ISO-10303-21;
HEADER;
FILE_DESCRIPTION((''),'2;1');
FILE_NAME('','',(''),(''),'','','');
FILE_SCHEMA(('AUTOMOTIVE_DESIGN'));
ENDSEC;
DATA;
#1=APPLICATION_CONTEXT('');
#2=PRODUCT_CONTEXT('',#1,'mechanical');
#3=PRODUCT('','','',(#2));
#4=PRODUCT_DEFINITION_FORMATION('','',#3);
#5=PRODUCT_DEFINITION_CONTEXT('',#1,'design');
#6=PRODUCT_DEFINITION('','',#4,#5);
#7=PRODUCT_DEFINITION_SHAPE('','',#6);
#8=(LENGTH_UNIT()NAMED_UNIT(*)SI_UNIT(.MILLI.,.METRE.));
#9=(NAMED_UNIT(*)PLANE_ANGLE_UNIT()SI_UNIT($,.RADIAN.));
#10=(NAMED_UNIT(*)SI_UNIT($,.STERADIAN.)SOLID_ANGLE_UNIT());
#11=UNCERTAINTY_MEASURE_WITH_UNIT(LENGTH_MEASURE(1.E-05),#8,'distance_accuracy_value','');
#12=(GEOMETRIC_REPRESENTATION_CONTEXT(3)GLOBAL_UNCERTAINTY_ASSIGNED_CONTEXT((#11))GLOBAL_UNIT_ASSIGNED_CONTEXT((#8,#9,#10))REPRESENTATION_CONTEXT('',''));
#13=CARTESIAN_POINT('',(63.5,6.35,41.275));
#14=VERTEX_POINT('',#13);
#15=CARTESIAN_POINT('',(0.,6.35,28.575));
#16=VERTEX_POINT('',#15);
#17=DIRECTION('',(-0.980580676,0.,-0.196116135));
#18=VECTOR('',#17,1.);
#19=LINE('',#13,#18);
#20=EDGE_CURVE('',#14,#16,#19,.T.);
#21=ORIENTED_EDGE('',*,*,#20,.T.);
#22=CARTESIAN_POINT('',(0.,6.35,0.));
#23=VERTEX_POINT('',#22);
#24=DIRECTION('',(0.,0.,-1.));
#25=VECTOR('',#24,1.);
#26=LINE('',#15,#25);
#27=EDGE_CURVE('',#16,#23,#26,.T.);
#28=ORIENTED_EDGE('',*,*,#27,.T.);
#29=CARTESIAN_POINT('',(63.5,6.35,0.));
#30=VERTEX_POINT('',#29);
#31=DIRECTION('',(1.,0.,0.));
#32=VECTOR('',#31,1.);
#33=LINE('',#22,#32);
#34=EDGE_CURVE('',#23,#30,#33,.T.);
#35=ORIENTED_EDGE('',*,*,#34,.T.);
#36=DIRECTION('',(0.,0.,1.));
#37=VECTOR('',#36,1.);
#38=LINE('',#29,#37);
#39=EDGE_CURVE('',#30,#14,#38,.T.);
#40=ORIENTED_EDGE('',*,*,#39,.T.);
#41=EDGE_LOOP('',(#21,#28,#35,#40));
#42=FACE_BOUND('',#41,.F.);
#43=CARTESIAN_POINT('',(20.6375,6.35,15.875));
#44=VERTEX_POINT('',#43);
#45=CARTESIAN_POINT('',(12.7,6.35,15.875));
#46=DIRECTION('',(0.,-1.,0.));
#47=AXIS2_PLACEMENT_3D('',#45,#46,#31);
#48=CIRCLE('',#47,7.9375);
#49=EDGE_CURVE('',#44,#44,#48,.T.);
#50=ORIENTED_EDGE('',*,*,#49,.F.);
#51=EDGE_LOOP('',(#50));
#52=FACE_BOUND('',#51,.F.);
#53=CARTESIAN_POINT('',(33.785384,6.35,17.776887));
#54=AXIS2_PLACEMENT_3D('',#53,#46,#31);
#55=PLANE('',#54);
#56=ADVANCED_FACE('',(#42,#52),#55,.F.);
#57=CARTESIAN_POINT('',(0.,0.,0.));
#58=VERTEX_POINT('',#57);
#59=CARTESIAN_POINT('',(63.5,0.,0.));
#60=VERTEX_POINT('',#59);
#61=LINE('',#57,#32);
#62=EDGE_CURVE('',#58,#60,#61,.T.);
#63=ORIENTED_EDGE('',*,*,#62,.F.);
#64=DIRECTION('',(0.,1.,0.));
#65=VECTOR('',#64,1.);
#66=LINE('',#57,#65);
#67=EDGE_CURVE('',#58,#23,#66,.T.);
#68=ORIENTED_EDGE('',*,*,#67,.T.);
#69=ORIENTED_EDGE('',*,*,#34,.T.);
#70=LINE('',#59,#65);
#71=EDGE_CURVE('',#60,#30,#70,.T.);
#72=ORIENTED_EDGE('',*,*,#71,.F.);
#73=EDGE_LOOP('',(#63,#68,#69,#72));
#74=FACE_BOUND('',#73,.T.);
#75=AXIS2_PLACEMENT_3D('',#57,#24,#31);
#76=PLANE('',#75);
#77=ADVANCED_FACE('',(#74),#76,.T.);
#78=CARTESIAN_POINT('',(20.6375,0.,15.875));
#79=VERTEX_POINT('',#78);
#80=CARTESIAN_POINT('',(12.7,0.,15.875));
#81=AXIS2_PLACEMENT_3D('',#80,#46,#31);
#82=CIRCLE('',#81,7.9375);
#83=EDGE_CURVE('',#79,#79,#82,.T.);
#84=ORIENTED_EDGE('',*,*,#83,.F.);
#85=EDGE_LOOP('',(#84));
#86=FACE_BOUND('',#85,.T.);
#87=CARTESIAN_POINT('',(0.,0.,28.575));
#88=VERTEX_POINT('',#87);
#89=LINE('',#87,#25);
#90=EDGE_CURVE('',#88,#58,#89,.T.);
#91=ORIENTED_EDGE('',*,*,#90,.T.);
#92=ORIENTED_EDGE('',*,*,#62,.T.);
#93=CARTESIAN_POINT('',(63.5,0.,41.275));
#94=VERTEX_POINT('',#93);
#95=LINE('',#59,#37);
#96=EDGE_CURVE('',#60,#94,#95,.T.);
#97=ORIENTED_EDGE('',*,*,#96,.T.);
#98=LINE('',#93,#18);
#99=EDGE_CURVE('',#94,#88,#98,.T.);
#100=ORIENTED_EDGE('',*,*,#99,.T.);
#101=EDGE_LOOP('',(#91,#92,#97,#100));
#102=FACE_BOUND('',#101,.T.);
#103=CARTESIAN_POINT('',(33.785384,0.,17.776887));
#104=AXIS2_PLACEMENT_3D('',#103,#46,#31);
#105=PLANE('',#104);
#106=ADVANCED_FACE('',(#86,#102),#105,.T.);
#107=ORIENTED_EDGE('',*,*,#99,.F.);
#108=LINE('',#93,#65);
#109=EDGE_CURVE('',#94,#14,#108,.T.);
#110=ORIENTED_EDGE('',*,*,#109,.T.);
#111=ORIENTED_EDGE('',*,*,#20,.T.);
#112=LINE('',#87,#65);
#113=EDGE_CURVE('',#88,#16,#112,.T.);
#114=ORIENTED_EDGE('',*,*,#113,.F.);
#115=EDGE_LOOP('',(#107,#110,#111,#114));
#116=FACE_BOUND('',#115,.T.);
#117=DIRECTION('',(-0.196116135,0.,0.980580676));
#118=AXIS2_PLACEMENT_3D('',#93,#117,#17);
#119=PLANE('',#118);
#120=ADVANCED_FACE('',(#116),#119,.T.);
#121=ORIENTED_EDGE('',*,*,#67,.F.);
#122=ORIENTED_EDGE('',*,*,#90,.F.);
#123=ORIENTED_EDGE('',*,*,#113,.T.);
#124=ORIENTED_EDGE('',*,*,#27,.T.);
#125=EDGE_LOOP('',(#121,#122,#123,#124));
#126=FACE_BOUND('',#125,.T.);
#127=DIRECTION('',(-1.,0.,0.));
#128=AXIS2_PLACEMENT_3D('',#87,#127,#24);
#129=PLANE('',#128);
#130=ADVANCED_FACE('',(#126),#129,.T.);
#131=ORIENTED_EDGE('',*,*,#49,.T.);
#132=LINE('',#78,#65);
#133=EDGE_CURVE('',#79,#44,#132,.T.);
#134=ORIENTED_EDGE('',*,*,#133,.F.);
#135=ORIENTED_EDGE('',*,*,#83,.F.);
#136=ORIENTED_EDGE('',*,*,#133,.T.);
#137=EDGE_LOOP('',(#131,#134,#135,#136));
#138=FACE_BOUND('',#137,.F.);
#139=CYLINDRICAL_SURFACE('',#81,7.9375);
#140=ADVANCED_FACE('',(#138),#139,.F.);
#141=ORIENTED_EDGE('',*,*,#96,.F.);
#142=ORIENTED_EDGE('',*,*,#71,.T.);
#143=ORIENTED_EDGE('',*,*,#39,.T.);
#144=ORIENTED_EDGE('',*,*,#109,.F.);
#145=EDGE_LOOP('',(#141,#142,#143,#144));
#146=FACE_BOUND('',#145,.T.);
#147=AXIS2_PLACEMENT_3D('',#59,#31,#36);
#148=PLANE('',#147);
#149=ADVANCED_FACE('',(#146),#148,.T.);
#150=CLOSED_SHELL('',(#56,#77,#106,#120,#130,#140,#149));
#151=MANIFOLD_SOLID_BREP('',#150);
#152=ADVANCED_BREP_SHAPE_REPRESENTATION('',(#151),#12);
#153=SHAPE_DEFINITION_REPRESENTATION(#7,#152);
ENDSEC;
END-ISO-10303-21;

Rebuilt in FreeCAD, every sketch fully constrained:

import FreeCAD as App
import Part
import Sketcher
from FreeCAD import Vector
Q = App.Units.Quantity

doc = App.newDocument("Part")
body = doc.addObject("PartDesign::Body", "Body")

sketch1 = doc.addObject("Sketcher::SketchObject", "Sketch")
body.addObject(sketch1)
sketch1.AttachmentSupport = (doc.XZ_Plane, [""])
sketch1.MapMode = "FlatFace"
sketch1.addGeometry([
    Part.LineSegment(Vector(64, 0, 0), Vector(64, 41, 0)),
    Part.LineSegment(Vector(64, 41, 0), Vector(0, 29, 0)),
    Part.LineSegment(Vector(0, 29, 0), Vector(0, 0, 0)),
    Part.LineSegment(Vector(0, 0, 0), Vector(64, 0, 0)),
    Part.Circle(Vector(13, 16, 0), Vector(0, 0, 1), 8),
], False)
sketch1.addConstraint([
    Sketcher.Constraint("Coincident", 0, 2, 1, 1),
    Sketcher.Constraint("Coincident", 1, 2, 2, 1),
    Sketcher.Constraint("Coincident", 2, 2, 3, 1),
    Sketcher.Constraint("Coincident", 3, 2, 0, 1),
    Sketcher.Constraint("Vertical", 0),
    Sketcher.Constraint("Vertical", 2),
    Sketcher.Constraint("Horizontal", 3),
    Sketcher.Constraint("Coincident", 2, 2, -1, 1),
    Sketcher.Constraint("Diameter", 4, Q("0.625 in")),
    Sketcher.Constraint("DistanceX", 3, 1, 3, 2, Q("2.5 in")),
    Sketcher.Constraint("DistanceX", 4, 3, 0, 2, Q("2 in")),
    Sketcher.Constraint("DistanceY", 4, 3, 0, 2, Q("1 in")),
    Sketcher.Constraint("DistanceY", 4, 3, 1, 2, Q("0.5 in")),
    Sketcher.Constraint("DistanceY", 0, 1, 0, 2, Q("1.625 in")),
])
pad1 = doc.addObject("PartDesign::Pad", "Pad")
body.addObject(pad1)
pad1.Profile = sketch1
pad1.Length = Q("0.25 in")
pad1.Reversed = True

doc.recompute()
